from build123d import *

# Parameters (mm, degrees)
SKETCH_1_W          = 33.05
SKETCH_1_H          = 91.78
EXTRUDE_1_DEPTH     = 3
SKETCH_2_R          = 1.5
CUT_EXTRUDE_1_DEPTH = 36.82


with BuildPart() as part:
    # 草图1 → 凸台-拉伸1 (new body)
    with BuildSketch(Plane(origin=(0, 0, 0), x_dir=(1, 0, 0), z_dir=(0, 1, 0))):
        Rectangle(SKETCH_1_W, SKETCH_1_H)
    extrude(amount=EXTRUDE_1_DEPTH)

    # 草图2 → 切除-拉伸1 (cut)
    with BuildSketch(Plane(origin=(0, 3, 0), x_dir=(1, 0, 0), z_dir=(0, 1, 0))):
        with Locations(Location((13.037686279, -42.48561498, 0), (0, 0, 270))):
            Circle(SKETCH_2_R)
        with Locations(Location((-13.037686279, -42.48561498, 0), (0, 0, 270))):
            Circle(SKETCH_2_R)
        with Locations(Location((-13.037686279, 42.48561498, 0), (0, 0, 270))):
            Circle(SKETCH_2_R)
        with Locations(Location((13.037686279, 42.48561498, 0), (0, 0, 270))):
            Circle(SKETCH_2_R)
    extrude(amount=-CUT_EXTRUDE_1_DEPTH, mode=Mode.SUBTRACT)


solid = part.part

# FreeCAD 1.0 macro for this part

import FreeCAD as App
import Part
import Sketcher
Q = App.Units.Quantity

doc = App.newDocument("Part")
params = doc.addObject("Spreadsheet::Sheet", "Params")
for row, (alias, value) in enumerate([
    ("sketch1_width", "33.05 mm"),
    ("sketch1_height", "91.78 mm"),
    ("pad1_length", "3 mm"),
    ("sketch2_diameter", "3 mm"),
    ("pocket1_length", "36.82 mm"),
], start=1):
    params.set(f"A{row}", alias)
    params.set(f"B{row}", "=" + value)
    params.setAlias(f"B{row}", alias)

body = doc.addObject("PartDesign::Body", "Body")

# Sketch on XZ plane
sketch1 = body.newObject("Sketcher::SketchObject", "Sketch")
sketch1.AttachmentSupport = (doc.getObject("XZ_Plane"), [""])
sketch1.MapMode = "FlatFace"
sketch1.addGeometry(Part.LineSegment(App.Vector(-16.525, -45.89, 0), App.Vector(-16.525, 45.89, 0)), False)
sketch1.addGeometry(Part.LineSegment(App.Vector(-16.525, 45.89, 0), App.Vector(16.525, 45.89, 0)), False)
sketch1.addGeometry(Part.LineSegment(App.Vector(16.525, 45.89, 0), App.Vector(16.525, -45.89, 0)), False)
sketch1.addGeometry(Part.LineSegment(App.Vector(16.525, -45.89, 0), App.Vector(-16.525, -45.89, 0)), False)
sketch1.addConstraint(Sketcher.Constraint("Coincident", 0, 2, 1, 1))
sketch1.addConstraint(Sketcher.Constraint("Coincident", 1, 2, 2, 1))
sketch1.addConstraint(Sketcher.Constraint("Coincident", 2, 2, 3, 1))
sketch1.addConstraint(Sketcher.Constraint("Coincident", 3, 2, 0, 1))
sketch1.addConstraint(Sketcher.Constraint("Vertical", 0))
sketch1.addConstraint(Sketcher.Constraint("Horizontal", 1))
sketch1.addConstraint(Sketcher.Constraint("Vertical", 2))
sketch1.addConstraint(Sketcher.Constraint("Horizontal", 3))
sketch1.addConstraint(Sketcher.Constraint("Symmetric", 0, 2, 2, 2, -1, 1))
sketch1.addConstraint(Sketcher.Constraint("DistanceX", 1, 1, 1, 2, Q("33.05 mm")))
sketch1.addConstraint(Sketcher.Constraint("DistanceY", 0, 1, 0, 2, Q("91.78 mm")))
sketch1.setExpression("Constraints[9]", "Params.sketch1_width")
sketch1.setExpression("Constraints[10]", "Params.sketch1_height")
pad1 = body.newObject("PartDesign::Pad", "Pad")
pad1.Profile = sketch1
pad1.setExpression("Length", "Params.pad1_length")
pad1.Reversed = True

# Sketch on XZ plane
sketch2 = body.newObject("Sketcher::SketchObject", "Sketch001")
sketch2.AttachmentSupport = (doc.getObject("XZ_Plane"), [""])
sketch2.MapMode = "FlatFace"
sketch2.AttachmentOffset = App.Placement(App.Vector(0, 0, -3), App.Rotation())
sketch2.addGeometry(Part.Circle(App.Vector(13.037686, 42.485615, 0), App.Vector(0, 0, 1), 1.5), False)
sketch2.addGeometry(Part.Circle(App.Vector(-13.037686, 42.485615, 0), App.Vector(0, 0, 1), 1.5), False)
sketch2.addGeometry(Part.Circle(App.Vector(-13.037686, -42.485615, 0), App.Vector(0, 0, 1), 1.5), False)
sketch2.addGeometry(Part.Circle(App.Vector(13.037686, -42.485615, 0), App.Vector(0, 0, 1), 1.5), False)
sketch2.addConstraint(Sketcher.Constraint("Equal", 0, 1))
sketch2.addConstraint(Sketcher.Constraint("Equal", 1, 2))
sketch2.addConstraint(Sketcher.Constraint("Equal", 2, 3))
sketch2.addConstraint(Sketcher.Constraint("Symmetric", 0, 3, 2, 3, -1, 1))
sketch2.addConstraint(Sketcher.Constraint("Symmetric", 1, 3, 3, 3, -1, 1))
sketch2.addConstraint(Sketcher.Constraint("Symmetric", 0, 3, 1, 3, -2))
sketch2.addConstraint(Sketcher.Constraint("Diameter", 0, Q("3 mm")))
sketch2.addConstraint(Sketcher.Constraint("DistanceY", 2, 3, 1, 3, Q("84.97123 mm")))
sketch2.addConstraint(Sketcher.Constraint("DistanceX", -1, 1, 0, 3, Q("13.037686 mm")))
sketch2.setExpression("Constraints[6]", "Params.sketch2_diameter")
pocket1 = body.newObject("PartDesign::Pocket", "Pocket")
pocket1.Profile = sketch2
pocket1.setExpression("Length", "Params.pocket1_length")
pocket1.Reversed = True

doc.recompute()
